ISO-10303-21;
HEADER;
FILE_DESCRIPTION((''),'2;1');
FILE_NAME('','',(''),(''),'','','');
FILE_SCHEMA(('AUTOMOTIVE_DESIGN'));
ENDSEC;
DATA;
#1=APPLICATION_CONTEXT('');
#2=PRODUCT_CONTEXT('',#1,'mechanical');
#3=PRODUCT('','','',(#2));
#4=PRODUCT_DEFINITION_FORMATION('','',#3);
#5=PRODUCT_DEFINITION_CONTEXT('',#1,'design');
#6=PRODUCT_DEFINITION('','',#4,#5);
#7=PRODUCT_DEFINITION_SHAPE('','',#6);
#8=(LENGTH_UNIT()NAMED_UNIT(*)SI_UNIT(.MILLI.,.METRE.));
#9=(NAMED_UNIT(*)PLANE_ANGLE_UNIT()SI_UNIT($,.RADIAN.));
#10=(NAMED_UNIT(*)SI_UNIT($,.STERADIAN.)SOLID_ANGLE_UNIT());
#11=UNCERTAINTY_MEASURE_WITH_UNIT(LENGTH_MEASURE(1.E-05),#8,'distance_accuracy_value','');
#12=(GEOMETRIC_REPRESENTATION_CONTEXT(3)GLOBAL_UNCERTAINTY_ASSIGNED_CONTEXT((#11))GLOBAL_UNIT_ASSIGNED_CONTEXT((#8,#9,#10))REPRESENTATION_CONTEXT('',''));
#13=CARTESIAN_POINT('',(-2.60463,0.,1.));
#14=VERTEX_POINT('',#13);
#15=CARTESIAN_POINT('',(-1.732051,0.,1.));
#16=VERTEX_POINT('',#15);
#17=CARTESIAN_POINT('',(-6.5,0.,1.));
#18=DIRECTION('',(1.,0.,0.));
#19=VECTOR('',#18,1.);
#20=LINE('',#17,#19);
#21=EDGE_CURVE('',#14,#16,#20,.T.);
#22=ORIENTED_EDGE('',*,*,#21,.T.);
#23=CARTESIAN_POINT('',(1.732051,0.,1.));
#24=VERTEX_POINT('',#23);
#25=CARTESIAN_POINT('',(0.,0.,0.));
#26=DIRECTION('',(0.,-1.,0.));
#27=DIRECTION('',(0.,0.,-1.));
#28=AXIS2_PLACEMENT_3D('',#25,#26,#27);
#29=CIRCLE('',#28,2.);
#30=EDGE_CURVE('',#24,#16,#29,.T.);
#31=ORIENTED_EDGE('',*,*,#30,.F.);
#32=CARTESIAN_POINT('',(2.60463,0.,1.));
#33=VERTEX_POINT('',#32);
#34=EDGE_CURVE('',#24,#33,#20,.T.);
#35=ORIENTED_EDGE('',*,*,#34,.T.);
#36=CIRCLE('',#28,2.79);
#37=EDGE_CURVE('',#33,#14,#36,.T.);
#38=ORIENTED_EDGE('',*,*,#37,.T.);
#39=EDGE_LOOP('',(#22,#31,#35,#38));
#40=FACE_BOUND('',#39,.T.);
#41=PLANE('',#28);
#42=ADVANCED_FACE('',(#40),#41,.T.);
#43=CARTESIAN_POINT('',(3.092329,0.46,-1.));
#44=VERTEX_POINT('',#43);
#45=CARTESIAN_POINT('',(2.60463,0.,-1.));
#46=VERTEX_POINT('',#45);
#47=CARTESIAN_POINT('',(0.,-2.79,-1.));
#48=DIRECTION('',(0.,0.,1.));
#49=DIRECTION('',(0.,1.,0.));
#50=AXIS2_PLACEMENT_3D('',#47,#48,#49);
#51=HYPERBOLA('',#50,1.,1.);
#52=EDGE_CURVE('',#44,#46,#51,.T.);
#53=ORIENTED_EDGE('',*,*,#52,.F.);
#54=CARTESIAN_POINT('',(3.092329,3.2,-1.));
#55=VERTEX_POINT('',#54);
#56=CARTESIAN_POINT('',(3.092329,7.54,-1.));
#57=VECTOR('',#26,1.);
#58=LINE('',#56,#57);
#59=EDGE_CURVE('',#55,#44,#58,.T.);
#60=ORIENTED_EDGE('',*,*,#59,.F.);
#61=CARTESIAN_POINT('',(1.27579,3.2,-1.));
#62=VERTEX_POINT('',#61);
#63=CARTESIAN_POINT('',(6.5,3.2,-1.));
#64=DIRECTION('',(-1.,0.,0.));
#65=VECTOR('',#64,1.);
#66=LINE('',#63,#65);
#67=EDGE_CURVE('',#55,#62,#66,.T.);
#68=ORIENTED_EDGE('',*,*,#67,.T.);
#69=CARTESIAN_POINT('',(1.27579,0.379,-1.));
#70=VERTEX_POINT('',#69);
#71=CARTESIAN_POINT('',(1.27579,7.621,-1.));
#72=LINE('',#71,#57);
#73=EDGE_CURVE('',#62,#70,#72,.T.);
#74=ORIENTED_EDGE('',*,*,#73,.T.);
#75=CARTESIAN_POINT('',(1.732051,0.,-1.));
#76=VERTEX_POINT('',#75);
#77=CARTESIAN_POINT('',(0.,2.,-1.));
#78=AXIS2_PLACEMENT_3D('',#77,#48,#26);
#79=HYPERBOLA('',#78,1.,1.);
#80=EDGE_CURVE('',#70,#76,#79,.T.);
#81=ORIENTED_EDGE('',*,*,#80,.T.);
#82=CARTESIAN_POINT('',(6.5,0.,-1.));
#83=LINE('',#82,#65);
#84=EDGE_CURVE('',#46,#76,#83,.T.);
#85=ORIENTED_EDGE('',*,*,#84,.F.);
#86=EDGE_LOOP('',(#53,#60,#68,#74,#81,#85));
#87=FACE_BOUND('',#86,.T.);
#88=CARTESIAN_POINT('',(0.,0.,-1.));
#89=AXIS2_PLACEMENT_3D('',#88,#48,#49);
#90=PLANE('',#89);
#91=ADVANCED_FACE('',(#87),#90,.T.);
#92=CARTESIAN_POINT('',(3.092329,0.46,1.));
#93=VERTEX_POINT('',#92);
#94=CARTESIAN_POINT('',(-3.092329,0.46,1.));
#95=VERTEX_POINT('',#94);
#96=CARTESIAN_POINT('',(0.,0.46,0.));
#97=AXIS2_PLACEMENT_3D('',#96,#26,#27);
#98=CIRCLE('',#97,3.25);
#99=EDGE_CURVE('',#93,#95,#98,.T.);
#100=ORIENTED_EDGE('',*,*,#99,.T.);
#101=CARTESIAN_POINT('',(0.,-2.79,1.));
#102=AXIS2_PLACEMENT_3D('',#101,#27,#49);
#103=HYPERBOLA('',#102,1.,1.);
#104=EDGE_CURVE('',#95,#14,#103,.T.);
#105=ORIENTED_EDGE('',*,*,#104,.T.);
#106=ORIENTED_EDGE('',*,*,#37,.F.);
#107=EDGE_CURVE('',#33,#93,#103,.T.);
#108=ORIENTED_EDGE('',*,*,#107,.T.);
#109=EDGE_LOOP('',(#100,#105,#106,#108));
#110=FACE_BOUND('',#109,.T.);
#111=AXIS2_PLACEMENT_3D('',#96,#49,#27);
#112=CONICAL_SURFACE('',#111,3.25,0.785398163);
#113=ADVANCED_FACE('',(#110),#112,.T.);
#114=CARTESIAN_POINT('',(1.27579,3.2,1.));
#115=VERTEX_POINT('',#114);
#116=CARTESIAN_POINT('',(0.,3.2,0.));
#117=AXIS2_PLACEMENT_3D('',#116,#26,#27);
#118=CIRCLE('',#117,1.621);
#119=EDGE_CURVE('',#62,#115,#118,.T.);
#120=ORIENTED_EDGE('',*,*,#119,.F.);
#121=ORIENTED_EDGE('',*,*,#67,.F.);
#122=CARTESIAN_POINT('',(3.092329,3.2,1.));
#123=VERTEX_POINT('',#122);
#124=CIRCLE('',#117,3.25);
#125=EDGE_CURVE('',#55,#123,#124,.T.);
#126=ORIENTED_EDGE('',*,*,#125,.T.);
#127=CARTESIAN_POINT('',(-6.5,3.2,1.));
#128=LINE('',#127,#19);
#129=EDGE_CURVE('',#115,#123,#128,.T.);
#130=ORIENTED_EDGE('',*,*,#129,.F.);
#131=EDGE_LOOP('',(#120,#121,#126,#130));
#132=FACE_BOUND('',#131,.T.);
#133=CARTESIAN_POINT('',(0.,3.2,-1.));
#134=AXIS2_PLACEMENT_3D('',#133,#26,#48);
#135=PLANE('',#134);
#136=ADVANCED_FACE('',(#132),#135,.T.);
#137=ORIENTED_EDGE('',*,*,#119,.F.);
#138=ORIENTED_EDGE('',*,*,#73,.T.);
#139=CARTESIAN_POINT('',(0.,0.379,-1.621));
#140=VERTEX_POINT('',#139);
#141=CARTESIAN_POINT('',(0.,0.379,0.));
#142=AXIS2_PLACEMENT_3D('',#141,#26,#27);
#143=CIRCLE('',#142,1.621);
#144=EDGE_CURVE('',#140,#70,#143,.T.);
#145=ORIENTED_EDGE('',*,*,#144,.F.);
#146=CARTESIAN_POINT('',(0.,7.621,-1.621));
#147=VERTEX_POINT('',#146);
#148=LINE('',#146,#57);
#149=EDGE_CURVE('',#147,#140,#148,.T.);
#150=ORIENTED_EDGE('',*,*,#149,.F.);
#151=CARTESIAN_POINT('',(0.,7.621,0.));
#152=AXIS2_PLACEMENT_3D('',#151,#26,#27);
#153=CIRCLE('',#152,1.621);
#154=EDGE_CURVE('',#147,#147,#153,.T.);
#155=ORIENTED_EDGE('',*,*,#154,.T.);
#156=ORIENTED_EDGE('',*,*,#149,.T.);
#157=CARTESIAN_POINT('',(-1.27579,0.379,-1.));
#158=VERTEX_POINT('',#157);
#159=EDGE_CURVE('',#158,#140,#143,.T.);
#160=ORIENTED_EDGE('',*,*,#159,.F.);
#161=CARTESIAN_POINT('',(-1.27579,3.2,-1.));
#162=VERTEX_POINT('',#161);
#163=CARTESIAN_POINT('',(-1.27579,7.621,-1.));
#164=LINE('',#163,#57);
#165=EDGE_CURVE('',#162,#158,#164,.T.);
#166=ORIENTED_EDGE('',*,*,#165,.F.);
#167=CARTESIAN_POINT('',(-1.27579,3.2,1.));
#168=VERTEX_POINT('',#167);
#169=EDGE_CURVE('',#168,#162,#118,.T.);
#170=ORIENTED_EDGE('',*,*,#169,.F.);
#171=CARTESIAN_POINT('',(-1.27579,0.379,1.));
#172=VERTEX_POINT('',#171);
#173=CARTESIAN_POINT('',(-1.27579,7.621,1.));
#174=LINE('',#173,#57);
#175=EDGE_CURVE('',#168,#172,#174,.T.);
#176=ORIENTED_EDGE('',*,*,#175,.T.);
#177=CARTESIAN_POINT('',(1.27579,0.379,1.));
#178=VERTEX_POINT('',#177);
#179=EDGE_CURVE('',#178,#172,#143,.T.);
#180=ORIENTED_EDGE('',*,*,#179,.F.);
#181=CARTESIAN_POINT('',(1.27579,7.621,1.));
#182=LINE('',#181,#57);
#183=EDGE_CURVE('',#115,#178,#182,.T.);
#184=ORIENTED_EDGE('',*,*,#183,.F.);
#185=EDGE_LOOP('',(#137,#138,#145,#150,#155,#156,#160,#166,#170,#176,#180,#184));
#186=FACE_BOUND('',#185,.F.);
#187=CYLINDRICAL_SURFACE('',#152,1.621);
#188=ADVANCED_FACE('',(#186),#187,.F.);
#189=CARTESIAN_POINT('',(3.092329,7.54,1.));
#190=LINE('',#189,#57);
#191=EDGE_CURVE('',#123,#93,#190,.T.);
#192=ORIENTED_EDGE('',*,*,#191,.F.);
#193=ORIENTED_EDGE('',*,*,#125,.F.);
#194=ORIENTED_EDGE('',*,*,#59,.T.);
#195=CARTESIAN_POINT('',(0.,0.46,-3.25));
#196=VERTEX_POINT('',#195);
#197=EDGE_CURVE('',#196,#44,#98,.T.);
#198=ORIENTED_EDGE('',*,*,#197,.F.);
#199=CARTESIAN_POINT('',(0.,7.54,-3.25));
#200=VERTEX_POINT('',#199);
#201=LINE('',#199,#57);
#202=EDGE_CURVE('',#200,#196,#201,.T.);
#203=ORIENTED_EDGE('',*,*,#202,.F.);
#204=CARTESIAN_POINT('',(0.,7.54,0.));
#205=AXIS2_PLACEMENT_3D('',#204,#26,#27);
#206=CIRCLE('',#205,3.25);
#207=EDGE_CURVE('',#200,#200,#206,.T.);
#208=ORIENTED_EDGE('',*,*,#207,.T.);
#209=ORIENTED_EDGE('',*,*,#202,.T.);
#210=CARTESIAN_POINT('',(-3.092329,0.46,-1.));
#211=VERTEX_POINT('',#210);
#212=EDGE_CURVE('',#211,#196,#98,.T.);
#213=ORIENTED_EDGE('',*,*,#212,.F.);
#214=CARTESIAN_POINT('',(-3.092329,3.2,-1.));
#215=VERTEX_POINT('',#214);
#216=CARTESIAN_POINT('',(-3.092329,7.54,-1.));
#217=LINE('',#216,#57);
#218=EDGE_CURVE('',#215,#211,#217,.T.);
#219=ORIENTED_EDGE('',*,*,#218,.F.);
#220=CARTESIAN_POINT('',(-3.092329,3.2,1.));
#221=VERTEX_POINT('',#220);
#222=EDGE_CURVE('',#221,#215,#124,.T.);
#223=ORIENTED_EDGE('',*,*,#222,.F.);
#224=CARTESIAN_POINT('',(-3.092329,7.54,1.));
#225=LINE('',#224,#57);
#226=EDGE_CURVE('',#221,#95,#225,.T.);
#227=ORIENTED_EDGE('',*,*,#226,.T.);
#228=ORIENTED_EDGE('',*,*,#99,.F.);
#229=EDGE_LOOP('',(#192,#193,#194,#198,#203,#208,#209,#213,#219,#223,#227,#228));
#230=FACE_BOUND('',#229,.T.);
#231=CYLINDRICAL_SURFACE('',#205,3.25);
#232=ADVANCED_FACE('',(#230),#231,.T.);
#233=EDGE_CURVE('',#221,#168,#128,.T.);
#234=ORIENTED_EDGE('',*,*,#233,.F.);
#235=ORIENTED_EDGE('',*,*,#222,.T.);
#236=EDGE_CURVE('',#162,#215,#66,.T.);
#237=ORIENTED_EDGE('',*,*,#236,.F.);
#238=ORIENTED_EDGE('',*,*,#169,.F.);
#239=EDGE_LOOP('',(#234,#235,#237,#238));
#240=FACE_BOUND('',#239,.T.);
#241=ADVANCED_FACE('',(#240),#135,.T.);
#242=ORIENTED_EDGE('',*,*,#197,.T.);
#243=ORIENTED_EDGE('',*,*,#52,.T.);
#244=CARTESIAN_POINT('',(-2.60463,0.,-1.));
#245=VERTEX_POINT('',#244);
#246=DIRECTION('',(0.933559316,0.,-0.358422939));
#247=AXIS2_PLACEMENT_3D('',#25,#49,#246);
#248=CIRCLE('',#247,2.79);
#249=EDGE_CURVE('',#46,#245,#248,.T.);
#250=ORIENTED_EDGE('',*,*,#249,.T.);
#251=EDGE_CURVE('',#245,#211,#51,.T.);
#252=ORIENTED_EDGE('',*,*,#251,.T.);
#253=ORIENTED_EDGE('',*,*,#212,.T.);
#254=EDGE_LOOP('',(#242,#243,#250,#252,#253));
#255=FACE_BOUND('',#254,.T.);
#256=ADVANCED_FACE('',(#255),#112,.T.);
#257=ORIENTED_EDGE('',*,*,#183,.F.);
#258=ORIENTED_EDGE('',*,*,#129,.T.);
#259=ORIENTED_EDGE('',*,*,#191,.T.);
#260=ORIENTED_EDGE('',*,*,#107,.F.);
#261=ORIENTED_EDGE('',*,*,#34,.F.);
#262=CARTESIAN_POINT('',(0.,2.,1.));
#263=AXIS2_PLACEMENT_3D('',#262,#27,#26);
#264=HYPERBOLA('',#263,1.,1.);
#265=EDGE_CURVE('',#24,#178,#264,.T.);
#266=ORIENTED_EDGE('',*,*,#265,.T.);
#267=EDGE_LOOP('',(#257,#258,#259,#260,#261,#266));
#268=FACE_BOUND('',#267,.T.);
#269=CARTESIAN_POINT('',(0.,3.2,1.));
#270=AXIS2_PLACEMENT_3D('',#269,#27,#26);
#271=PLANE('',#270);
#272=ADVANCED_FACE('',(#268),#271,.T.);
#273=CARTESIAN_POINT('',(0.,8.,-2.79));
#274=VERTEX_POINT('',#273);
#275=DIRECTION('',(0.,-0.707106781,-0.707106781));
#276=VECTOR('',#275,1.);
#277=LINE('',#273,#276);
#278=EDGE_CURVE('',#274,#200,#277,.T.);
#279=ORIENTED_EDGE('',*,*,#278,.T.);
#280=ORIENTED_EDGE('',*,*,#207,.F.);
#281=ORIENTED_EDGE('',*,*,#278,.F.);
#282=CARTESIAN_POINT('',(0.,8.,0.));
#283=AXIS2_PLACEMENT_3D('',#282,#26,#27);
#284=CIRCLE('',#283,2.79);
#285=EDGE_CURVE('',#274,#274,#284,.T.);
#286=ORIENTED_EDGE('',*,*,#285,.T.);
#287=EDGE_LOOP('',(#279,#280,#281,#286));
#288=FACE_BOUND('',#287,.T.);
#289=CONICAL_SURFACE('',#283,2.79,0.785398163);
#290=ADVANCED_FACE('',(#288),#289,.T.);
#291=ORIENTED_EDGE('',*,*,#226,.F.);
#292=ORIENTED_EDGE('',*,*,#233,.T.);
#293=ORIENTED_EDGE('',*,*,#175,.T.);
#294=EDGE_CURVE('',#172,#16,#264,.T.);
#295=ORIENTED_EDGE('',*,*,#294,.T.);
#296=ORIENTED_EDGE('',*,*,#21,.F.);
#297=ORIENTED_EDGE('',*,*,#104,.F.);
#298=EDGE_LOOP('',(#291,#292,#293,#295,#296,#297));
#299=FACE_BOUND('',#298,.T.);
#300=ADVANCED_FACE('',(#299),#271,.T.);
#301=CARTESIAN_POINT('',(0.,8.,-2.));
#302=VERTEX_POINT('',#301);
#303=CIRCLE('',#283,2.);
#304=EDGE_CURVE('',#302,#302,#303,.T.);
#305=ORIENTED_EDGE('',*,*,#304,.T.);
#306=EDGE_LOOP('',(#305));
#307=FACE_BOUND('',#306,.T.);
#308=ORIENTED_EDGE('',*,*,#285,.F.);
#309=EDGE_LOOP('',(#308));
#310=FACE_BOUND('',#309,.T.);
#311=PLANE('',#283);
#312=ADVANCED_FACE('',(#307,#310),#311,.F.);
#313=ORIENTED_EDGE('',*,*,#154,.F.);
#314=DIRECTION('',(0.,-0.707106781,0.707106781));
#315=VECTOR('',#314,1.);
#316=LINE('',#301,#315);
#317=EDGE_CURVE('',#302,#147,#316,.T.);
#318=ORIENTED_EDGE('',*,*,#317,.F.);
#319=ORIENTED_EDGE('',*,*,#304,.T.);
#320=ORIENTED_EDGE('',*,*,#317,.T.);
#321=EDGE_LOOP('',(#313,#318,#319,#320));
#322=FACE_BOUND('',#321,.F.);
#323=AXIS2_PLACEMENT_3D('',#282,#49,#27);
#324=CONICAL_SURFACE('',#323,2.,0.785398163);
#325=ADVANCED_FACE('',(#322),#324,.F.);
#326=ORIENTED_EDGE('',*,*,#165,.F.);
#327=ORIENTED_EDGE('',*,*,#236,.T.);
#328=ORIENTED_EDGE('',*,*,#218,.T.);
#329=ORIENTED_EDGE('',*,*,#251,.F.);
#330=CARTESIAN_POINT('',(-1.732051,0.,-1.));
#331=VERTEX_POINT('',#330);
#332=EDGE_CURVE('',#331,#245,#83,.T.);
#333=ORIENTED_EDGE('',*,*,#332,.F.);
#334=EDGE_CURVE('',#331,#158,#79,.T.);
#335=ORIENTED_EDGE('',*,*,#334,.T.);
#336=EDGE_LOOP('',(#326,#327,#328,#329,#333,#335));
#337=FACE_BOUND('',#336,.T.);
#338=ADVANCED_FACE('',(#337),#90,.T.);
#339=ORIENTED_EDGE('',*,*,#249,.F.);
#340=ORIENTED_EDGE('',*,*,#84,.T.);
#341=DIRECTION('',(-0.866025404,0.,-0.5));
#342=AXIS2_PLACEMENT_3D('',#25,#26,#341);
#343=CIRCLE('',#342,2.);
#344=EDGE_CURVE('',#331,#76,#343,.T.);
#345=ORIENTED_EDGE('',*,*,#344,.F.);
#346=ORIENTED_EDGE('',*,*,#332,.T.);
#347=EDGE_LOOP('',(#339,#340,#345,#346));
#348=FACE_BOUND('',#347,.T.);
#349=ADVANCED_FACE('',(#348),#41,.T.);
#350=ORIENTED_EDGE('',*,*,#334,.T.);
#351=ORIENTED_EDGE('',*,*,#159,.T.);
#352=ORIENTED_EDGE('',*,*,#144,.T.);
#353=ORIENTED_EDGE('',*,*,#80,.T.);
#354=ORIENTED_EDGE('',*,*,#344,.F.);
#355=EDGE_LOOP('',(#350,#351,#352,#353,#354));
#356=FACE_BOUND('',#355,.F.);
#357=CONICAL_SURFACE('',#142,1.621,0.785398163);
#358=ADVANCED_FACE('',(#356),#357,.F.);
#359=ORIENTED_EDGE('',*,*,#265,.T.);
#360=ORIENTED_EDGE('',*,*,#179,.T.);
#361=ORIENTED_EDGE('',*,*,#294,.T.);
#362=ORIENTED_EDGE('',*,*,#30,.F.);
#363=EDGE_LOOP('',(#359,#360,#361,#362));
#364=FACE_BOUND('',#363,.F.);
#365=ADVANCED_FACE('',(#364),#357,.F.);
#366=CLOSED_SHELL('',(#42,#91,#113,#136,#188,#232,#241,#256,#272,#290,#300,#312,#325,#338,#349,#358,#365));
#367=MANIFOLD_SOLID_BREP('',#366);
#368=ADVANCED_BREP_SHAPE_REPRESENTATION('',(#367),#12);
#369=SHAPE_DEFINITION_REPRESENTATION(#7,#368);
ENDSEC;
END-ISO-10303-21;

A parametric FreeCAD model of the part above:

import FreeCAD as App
import Part
import Sketcher

V = App.Vector
Q = App.Units.Quantity

doc = App.newDocument("Part")
params = doc.addObject("Spreadsheet::Sheet", "Params")
for row, (alias, value) in enumerate([
    ("sketch1_width", "8 mm"),
    ("sketch1_width2", "7.08 mm"),
    ("sketch1_height", "2.79 mm"),
    ("revolution_angle", "360 deg"),
    ("sketch2_width", "8 mm"),
    ("sketch2_height", "2 mm"),
    ("groove_angle", "360 deg"),
    ("sketch3_height", "2 mm"),
    ("sketch3_width", "3.2 mm"),
    ("pocket1_length", "13 mm"),
], start=1):
    params.set(f"A{row}", alias)
    params.set(f"B{row}", "=" + value)
    params.setAlias(f"B{row}", alias)

body = doc.addObject("PartDesign::Body", "Body")

# Sketch on YZ plane
sketch1 = body.newObject("Sketcher::SketchObject", "Sketch")
sketch1.AttachmentSupport = (doc.getObject("YZ_Plane"), [""])
sketch1.MapMode = "FlatFace"
sketch1.addGeometry([
    Part.LineSegment(V(8, 0, 0), V(0, 0, 0)),  # 0
    Part.LineSegment(V(0, 0, 0), V(0, -2.79, 0)),  # 1
    Part.LineSegment(V(0, -2.79, 0), V(0.46, -3.25, 0)),  # 2
    Part.LineSegment(V(0.46, -3.25, 0), V(7.54, -3.25, 0)),  # 3
    Part.LineSegment(V(7.54, -3.25, 0), V(8, -2.79, 0)),  # 4
    Part.LineSegment(V(8, -2.79, 0), V(8, 0, 0)),  # 5
], False)
sketch1.addConstraint([
    Sketcher.Constraint("Coincident", 0, 2, 1, 1),
    Sketcher.Constraint("Coincident", 1, 2, 2, 1),
    Sketcher.Constraint("Coincident", 2, 2, 3, 1),
    Sketcher.Constraint("Coincident", 3, 2, 4, 1),
    Sketcher.Constraint("Coincident", 4, 2, 5, 1),
    Sketcher.Constraint("Coincident", 5, 2, 0, 1),
    Sketcher.Constraint("Horizontal", 0),
    Sketcher.Constraint("Vertical", 1),
    Sketcher.Constraint("Horizontal", 3),
    Sketcher.Constraint("Vertical", 5),
    Sketcher.Constraint("Coincident", 0, 2, -1, 1),
    Sketcher.Constraint("Perpendicular", 2, 4),
    Sketcher.Constraint("Horizontal", 1, 2, 4, 2),
    Sketcher.Constraint("Equal", 2, 4),
    Sketcher.Constraint("DistanceX", 0, 2, 0, 1, Q("8 mm")),
    Sketcher.Constraint("DistanceX", 3, 1, 3, 2, Q("7.08 mm")),
    Sketcher.Constraint("DistanceY", 1, 2, 1, 1, Q("2.79 mm")),
])
sketch1.setExpression("Constraints[14]", "Params.sketch1_width")
sketch1.setExpression("Constraints[15]", "Params.sketch1_width2")
sketch1.setExpression("Constraints[16]", "Params.sketch1_height")
revolution = body.newObject("PartDesign::Revolution", "Revolution")
revolution.Profile = sketch1
revolution.ReferenceAxis = (sketch1, ["H_Axis"])
revolution.setExpression("Angle", "Params.revolution_angle")

# Sketch on YZ plane
sketch2 = body.newObject("Sketcher::SketchObject", "Sketch001")
sketch2.AttachmentSupport = (doc.getObject("YZ_Plane"), [""])
sketch2.MapMode = "FlatFace"
sketch2.addGeometry([
    Part.LineSegment(V(8, 0, 0), V(0, 0, 0)),  # 0
    Part.LineSegment(V(0, 0, 0), V(0, -2, 0)),  # 1
    Part.LineSegment(V(0, -2, 0), V(0.379, -1.621, 0)),  # 2
    Part.LineSegment(V(0.379, -1.621, 0), V(7.621, -1.621, 0)),  # 3
    Part.LineSegment(V(7.621, -1.621, 0), V(8, -2, 0)),  # 4
    Part.LineSegment(V(8, -2, 0), V(8, 0, 0)),  # 5
], False)
sketch2.addConstraint([
    Sketcher.Constraint("Coincident", 0, 2, 1, 1),
    Sketcher.Constraint("Coincident", 1, 2, 2, 1),
    Sketcher.Constraint("Coincident", 2, 2, 3, 1),
    Sketcher.Constraint("Coincident", 3, 2, 4, 1),
    Sketcher.Constraint("Coincident", 4, 2, 5, 1),
    Sketcher.Constraint("Coincident", 5, 2, 0, 1),
    Sketcher.Constraint("Horizontal", 0),
    Sketcher.Constraint("Vertical", 1),
    Sketcher.Constraint("Horizontal", 3),
    Sketcher.Constraint("Vertical", 5),
    Sketcher.Constraint("Coincident", 0, 2, -1, 1),
    Sketcher.Constraint("Perpendicular", 2, 4),
    Sketcher.Constraint("Horizontal", 1, 2, 4, 2),
    Sketcher.Constraint("Equal", 2, 4),
    Sketcher.Constraint("DistanceX", 0, 2, 0, 1, Q("8 mm")),
    Sketcher.Constraint("DistanceY", 1, 2, 1, 1, Q("2 mm")),
    Sketcher.Constraint("DistanceX", 3, 1, 3, 2, Q("7.242 mm")),
])
sketch2.setExpression("Constraints[14]", "Params.sketch2_width")
sketch2.setExpression("Constraints[15]", "Params.sketch2_height")
groove = body.newObject("PartDesign::Groove", "Groove")
groove.Profile = sketch2
groove.ReferenceAxis = (sketch2, ["H_Axis"])
groove.setExpression("Angle", "Params.groove_angle")

# Sketch on YZ plane
sketch3 = body.newObject("Sketcher::SketchObject", "Sketch002")
sketch3.AttachmentSupport = (doc.getObject("YZ_Plane"), [""])
sketch3.MapMode = "FlatFace"
sketch3.addGeometry([
    Part.LineSegment(V(3.2, -1, 0), V(3.2, 1, 0)),
    Part.LineSegment(V(3.2, 1, 0), V(0, 1, 0)),
    Part.LineSegment(V(0, 1, 0), V(0, -1, 0)),
    Part.LineSegment(V(0, -1, 0), V(3.2, -1, 0)),
], False)
sketch3.addConstraint([
    Sketcher.Constraint("Coincident", 0, 2, 1, 1),
    Sketcher.Constraint("Coincident", 1, 2, 2, 1),
    Sketcher.Constraint("Coincident", 2, 2, 3, 1),
    Sketcher.Constraint("Coincident", 3, 2, 0, 1),
    Sketcher.Constraint("Vertical", 0),
    Sketcher.Constraint("Horizontal", 1),
    Sketcher.Constraint("Vertical", 2),
    Sketcher.Constraint("Horizontal", 3),
    Sketcher.Constraint("Symmetric", 1, 2, 2, 2, -1, 1),
    Sketcher.Constraint("DistanceY", 0, 1, 0, 2, Q("2 mm")),
    Sketcher.Constraint("DistanceX", 1, 2, 1, 1, Q("3.2 mm")),
])
sketch3.setExpression("Constraints[9]", "Params.sketch3_height")
sketch3.setExpression("Constraints[10]", "Params.sketch3_width")
pocket1 = body.newObject("PartDesign::Pocket", "Pocket")
pocket1.Profile = sketch3
pocket1.setExpression("Length", "Params.pocket1_length")
pocket1.Midplane = True

doc.recompute()
